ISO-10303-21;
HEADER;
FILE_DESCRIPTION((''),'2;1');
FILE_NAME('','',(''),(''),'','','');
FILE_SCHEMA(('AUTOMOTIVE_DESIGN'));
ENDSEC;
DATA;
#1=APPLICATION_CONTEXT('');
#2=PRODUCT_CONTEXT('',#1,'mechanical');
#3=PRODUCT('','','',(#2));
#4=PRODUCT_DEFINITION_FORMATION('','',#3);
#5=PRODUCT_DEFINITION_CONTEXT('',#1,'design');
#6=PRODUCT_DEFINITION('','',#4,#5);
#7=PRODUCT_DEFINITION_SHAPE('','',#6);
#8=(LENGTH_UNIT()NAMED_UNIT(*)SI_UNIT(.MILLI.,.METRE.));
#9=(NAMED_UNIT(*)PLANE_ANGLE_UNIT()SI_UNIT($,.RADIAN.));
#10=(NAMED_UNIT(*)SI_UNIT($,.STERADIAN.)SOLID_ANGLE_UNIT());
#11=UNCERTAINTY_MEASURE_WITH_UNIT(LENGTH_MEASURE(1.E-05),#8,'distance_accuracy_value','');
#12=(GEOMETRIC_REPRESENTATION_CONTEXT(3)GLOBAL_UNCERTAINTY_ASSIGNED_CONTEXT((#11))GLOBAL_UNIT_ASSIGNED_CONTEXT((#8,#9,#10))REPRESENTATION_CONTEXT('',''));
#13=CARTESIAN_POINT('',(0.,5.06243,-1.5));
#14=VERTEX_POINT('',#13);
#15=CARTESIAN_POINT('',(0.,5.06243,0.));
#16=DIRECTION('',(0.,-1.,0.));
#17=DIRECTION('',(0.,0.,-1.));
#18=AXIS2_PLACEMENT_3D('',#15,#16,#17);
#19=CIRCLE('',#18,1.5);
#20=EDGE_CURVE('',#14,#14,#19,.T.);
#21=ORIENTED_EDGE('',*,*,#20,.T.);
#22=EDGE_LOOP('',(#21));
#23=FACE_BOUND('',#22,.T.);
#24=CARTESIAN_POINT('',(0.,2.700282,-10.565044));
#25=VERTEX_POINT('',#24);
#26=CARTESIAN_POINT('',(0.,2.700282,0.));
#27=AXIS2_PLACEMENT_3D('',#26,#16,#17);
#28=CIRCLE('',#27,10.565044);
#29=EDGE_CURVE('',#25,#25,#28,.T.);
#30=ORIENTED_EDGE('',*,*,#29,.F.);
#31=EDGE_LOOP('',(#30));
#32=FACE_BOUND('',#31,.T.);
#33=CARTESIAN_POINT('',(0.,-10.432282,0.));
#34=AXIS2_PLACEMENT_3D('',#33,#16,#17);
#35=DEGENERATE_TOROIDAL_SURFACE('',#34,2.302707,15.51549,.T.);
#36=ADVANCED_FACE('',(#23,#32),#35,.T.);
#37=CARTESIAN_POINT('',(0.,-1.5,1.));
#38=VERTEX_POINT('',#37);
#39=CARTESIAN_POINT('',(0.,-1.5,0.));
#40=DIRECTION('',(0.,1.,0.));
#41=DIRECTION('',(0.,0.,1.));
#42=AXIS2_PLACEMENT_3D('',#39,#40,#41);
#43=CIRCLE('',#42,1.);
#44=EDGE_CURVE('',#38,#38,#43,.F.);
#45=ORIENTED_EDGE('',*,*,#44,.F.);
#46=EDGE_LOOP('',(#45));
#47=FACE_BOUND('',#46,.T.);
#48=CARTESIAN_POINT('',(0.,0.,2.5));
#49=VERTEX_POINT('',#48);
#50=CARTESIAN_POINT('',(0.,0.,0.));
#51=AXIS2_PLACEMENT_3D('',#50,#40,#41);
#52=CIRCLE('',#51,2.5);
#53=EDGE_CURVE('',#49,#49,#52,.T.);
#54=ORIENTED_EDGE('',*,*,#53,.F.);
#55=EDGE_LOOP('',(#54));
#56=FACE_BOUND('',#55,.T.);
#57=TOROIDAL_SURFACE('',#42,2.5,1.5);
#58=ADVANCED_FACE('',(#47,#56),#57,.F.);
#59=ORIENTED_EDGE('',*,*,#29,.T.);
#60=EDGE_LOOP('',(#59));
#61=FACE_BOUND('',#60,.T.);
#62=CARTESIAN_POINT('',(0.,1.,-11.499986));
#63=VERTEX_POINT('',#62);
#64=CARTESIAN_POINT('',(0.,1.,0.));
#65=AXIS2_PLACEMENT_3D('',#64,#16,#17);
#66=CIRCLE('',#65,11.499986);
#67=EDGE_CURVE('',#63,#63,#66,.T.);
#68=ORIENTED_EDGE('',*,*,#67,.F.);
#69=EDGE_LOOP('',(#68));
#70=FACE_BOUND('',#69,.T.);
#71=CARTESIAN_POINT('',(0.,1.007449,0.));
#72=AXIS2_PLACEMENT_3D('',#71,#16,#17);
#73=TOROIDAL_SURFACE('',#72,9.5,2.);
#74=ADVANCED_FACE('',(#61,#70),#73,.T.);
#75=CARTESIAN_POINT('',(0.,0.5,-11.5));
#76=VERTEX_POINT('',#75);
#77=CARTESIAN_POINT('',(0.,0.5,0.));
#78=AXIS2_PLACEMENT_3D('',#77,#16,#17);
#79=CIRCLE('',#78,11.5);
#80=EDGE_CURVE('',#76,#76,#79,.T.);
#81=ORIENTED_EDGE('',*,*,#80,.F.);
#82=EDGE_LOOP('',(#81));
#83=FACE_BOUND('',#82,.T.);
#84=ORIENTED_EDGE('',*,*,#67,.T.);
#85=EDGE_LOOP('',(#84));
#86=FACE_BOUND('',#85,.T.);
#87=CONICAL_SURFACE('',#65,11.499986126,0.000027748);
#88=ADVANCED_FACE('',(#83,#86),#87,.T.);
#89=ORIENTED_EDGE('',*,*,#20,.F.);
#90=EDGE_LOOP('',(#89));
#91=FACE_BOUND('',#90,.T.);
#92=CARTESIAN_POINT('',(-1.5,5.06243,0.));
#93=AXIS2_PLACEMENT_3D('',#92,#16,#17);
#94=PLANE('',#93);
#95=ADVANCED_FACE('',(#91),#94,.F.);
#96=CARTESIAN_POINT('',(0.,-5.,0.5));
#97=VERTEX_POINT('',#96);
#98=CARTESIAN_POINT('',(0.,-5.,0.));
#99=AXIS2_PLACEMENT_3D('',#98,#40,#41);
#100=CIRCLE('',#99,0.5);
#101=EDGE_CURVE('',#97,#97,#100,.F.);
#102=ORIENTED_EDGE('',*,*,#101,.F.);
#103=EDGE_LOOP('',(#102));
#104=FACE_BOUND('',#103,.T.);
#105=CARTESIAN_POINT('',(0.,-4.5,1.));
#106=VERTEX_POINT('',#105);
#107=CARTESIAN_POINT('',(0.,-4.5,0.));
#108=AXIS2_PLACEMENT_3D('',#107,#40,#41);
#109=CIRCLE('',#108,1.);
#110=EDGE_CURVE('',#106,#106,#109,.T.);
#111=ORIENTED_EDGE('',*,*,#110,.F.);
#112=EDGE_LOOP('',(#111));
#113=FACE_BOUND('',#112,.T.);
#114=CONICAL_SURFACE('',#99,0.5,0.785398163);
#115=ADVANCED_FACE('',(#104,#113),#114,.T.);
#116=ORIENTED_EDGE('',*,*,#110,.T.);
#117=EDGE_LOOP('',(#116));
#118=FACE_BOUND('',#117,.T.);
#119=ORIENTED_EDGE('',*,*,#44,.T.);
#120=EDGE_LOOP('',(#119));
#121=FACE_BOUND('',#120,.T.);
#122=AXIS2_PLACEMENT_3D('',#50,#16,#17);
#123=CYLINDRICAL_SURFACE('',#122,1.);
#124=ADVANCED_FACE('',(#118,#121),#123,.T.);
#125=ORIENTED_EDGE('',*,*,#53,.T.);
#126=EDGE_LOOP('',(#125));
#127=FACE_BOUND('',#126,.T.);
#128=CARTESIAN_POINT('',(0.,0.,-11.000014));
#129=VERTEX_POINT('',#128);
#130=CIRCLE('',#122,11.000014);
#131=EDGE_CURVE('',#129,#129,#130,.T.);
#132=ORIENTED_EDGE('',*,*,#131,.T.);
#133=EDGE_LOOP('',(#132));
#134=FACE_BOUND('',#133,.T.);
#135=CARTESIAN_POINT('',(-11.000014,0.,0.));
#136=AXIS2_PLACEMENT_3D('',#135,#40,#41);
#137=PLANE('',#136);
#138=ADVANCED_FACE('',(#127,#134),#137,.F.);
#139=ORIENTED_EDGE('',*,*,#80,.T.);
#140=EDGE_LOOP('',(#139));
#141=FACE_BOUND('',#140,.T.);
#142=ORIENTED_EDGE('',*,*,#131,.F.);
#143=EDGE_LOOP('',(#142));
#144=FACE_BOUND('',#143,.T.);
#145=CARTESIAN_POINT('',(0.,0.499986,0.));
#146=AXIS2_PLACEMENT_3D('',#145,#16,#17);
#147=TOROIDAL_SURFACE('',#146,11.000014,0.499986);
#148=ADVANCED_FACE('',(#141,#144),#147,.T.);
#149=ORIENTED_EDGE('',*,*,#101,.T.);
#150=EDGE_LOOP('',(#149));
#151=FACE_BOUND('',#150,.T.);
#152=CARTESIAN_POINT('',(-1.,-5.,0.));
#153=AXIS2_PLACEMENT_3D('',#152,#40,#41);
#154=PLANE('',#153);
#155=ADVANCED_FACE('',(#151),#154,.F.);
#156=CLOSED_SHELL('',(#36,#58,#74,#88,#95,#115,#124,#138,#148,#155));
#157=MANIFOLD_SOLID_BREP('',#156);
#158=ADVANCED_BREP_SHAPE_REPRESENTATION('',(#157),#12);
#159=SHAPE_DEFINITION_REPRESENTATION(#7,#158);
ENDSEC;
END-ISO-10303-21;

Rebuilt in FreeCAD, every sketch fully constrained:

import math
import FreeCAD as App
import Part
import Sketcher
from FreeCAD import Vector


def edges_at(feature, points):
    """Names of the edges that pass closest to the given points."""
    edges = feature.Shape.Edges
    near = lambda p: min(range(len(edges)), key=lambda i: edges[i].distToShape(Part.Vertex(*p))[0])
    return sorted({f"Edge{near(p) + 1}" for p in points})

doc = App.newDocument("Part")
body = doc.addObject("PartDesign::Body", "Body")

# Sketch on XY plane
sketch1 = body.newObject("Sketcher::SketchObject", "Sketch")
sketch1.AttachmentSupport = (doc.getObject("XY_Plane"), [""])
sketch1.MapMode = "FlatFace"
sketch1.addGeometry([
    Part.LineSegment(Vector(-11.000014, 0, 0), Vector(-1, 0, 0)),  # 0
    Part.LineSegment(Vector(-1, 0, 0), Vector(-1, -5, 0)),  # 1
    Part.LineSegment(Vector(-1, -5, 0), Vector(0, -5, 0)),  # 2
    Part.LineSegment(Vector(0, -5, 0), Vector(0, 5.06243, 0)),  # 3
    Part.LineSegment(Vector(0, 5.06243, 0), Vector(-1.5, 5.06243, 0)),  # 4
    Part.ArcOfCircle(Part.Circle(Vector(-2.302707, -10.432282, 0), Vector(0, 0, 1), 15.51549), math.radians(87.03443), math.radians(122.176001)),  # 5
    Part.ArcOfCircle(Part.Circle(Vector(-9.5, 1.007449, 0), Vector(0, 0, 1), 2), math.radians(122.176001), math.radians(180.213414)),  # 6
    Part.LineSegment(Vector(-11.499986, 1, 0), Vector(-11.5, 0.5, 0)),  # 7
    Part.ArcOfCircle(Part.Circle(Vector(-11.000014, 0.499986, 0), Vector(0, 0, 1), 0.499986), math.radians(179.99841), math.radians(270)),  # 8
], False)
sketch1.addConstraint([
    Sketcher.Constraint("Coincident", 0, 2, 1, 1),
    Sketcher.Constraint("Coincident", 1, 2, 2, 1),
    Sketcher.Constraint("Coincident", 2, 2, 3, 1),
    Sketcher.Constraint("Coincident", 3, 2, 4, 1),
    Sketcher.Constraint("Coincident", 4, 2, 5, 1),
    Sketcher.Constraint("Coincident", 5, 2, 6, 1),
    Sketcher.Constraint("Coincident", 6, 2, 7, 1),
    Sketcher.Constraint("Coincident", 7, 2, 8, 1),
    Sketcher.Constraint("Coincident", 8, 2, 0, 1),
    Sketcher.Constraint("Horizontal", 0),
    Sketcher.Constraint("Vertical", 1),
    Sketcher.Constraint("Horizontal", 2),
    Sketcher.Constraint("Vertical", 3),
    Sketcher.Constraint("Horizontal", 4),
    Sketcher.Constraint("PointOnObject", 0, 2, -1),
    Sketcher.Constraint("PointOnObject", 2, 2, -2),
    Sketcher.Constraint("Radius", 6, 2.0),
    Sketcher.Constraint("DistanceX", 2, 1, 2, 2, 1.0),
    Sketcher.Constraint("DistanceY", 1, 2, 1, 1, 5.0),
    Sketcher.Constraint("DistanceX", 4, 2, 4, 1, 1.5),
    Sketcher.Constraint("DistanceY", -1, 1, 6, 2, 1.0),
    Sketcher.Constraint("DistanceX", 6, 3, 4, 2, 8.0),
    Sketcher.Constraint("DistanceX", 7, 2, 6, 3, 2.0),
    Sketcher.Constraint("Distance", 7, 0.5),
    Sketcher.Constraint("Radius", 5, 15.51549),
    Sketcher.Constraint("Radius", 8, 0.499986),
    Sketcher.Constraint("DistanceY", 3, 1, 3, 2, 10.06243),
    Sketcher.Constraint("DistanceX", 0, 1, 0, 2, 10.000014),
    Sketcher.Constraint("DistanceY", 5, 3, -1, 1, 10.432282),
    Sketcher.Constraint("DistanceY", -1, 1, 5, 2, 2.700282),
])
revolution = body.newObject("PartDesign::Revolution", "Revolution")
revolution.Profile = sketch1
revolution.ReferenceAxis = (sketch1, ["V_Axis"])
revolution.Angle = 360
doc.recompute()

fillet = body.newObject("PartDesign::Fillet", "Fillet")
fillet.Base = (revolution, edges_at(revolution, [(0, 0, 1)]))
fillet.Radius = 1.5
doc.recompute()

chamfer = body.newObject("PartDesign::Chamfer", "Chamfer")
chamfer.Base = (fillet, edges_at(fillet, [(0, -5, 1)]))
chamfer.Size = 0.5

doc.recompute()
